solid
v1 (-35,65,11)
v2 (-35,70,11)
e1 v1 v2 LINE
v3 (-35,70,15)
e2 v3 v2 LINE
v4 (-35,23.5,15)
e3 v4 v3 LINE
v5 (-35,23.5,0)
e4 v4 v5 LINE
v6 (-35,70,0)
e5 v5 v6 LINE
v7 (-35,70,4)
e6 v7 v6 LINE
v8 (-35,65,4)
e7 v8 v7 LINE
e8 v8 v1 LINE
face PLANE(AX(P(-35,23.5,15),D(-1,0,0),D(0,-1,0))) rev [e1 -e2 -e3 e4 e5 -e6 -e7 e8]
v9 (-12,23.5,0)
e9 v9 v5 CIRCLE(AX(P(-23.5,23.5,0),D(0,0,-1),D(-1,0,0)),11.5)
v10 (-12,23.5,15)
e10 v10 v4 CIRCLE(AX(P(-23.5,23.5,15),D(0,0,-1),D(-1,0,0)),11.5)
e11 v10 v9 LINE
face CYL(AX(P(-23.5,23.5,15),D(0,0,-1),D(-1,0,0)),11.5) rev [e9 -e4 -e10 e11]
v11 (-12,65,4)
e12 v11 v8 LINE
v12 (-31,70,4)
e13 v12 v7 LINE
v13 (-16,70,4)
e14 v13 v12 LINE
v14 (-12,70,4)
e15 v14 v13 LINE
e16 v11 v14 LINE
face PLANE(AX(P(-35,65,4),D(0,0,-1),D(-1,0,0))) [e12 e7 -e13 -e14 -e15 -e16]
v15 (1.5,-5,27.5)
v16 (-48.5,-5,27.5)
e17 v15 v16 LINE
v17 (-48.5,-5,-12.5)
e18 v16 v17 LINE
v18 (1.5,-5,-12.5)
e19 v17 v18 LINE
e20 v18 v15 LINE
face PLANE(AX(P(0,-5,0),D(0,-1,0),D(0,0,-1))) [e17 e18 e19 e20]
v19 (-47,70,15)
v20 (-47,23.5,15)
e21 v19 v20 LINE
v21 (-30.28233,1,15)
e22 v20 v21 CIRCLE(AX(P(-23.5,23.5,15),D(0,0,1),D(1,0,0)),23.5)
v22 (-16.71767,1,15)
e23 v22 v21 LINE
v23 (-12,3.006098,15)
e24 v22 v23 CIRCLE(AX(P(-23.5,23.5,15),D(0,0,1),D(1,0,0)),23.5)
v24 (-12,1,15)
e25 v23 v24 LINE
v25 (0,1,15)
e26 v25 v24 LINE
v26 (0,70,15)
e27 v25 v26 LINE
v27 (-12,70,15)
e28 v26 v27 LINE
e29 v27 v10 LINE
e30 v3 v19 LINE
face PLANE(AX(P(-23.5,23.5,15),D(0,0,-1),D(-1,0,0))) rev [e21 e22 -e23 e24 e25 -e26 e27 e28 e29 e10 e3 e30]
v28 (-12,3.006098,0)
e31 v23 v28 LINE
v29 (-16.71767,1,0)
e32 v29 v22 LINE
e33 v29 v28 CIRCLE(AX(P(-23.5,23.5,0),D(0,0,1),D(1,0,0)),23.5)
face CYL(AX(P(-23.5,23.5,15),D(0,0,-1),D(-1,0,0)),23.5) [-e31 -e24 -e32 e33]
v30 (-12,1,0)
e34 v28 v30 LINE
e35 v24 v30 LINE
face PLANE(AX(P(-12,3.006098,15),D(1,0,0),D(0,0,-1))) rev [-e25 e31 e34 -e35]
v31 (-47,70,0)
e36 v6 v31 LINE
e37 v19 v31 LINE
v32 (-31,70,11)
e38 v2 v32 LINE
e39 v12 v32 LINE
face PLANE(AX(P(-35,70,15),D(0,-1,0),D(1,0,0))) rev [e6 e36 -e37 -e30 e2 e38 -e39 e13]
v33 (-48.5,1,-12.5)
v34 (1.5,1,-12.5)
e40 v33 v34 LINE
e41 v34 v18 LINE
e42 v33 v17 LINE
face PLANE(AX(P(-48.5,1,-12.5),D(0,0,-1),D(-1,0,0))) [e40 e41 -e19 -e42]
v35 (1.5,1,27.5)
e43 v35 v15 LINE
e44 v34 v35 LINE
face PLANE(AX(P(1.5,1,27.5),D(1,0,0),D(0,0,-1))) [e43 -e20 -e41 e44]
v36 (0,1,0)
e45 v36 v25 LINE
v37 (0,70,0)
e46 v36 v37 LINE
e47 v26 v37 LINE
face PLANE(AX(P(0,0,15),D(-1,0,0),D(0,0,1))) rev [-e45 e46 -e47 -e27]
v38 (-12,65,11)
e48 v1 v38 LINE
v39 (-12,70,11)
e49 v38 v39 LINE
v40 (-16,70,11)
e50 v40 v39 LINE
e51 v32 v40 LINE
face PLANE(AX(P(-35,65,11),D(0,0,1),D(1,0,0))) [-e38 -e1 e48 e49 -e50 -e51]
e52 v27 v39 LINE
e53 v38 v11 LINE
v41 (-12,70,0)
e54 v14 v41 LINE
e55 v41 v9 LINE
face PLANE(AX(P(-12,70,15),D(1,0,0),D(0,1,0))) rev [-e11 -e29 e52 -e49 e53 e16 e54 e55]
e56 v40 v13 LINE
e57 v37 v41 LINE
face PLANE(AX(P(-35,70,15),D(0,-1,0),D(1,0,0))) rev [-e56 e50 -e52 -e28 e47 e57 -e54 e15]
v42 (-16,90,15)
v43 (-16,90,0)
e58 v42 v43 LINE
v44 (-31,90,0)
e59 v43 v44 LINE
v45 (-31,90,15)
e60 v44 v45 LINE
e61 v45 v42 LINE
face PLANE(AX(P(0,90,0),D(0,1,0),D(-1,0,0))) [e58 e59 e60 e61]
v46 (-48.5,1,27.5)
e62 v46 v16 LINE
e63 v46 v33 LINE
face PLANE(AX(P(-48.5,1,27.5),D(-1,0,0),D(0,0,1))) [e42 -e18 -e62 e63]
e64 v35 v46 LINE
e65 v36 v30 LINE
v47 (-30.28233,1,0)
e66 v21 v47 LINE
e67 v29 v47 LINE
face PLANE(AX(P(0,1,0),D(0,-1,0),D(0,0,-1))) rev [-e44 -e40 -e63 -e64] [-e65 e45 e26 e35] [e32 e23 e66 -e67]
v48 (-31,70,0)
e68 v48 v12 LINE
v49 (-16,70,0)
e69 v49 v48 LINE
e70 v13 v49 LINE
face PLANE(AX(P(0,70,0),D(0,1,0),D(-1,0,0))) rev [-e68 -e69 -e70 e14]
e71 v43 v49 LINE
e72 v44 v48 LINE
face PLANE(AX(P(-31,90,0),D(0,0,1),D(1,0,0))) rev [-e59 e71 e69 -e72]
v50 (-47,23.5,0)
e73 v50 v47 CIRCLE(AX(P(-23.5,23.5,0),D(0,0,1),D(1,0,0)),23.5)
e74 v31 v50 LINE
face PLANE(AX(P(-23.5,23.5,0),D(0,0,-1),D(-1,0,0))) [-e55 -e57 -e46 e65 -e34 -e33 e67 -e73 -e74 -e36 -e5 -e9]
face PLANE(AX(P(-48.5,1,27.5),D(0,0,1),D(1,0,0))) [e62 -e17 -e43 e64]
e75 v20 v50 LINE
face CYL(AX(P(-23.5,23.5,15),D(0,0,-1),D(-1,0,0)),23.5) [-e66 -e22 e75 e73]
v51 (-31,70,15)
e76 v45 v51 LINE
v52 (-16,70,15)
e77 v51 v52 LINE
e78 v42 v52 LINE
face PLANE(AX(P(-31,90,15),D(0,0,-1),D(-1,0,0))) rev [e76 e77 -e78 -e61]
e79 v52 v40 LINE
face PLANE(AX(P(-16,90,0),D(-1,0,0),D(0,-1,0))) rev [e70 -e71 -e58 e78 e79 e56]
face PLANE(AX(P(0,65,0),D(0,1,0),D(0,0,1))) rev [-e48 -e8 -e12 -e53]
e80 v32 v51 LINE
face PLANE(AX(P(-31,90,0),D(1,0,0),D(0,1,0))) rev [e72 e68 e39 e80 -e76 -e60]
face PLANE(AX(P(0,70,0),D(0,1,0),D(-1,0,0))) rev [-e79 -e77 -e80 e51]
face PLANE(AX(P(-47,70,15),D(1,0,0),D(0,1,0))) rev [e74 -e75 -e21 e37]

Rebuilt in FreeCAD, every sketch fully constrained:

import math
import FreeCAD as App
import Part
import Sketcher

V = App.Vector


def add_polygon(sketch, points):
    """Adds a closed chain of lines whose ends are joined by coincident constraints."""
    first, n = sketch.GeometryCount, len(points)
    for a, b in zip(points, points[1:] + points[:1]):
        sketch.addGeometry(Part.LineSegment(App.Vector(*a, 0), App.Vector(*b, 0)), False)
    for i in range(n):
        sketch.addConstraint(Sketcher.Constraint("Coincident", first + i, 2, first + (i + 1) % n, 1))

doc = App.newDocument("Part")
params = doc.addObject("Spreadsheet::Sheet", "Params")
for row, (alias, value) in enumerate([
    ("sketch1_radius", "11.5 mm"),
    ("sketch1_radius2", "23.5 mm"),
    ("sketch1_height", "70 mm"),
    ("sketch1_height2", "46.5 mm"),
    ("pad1_length", "15 mm"),
    ("sketch2_width", "50 mm"),
    ("sketch2_height", "40 mm"),
    ("pad2_length", "5 mm"),
    ("pad2_length2", "1 mm"),
    ("sketch3_width", "23 mm"),
    ("sketch3_height", "7 mm"),
    ("pad3_length", "5 mm"),
    ("sketch4_width", "15 mm"),
    ("pad4_length", "20 mm"),
], start=1):
    params.set(f"A{row}", alias)
    params.set(f"B{row}", "=" + value)
    params.setAlias(f"B{row}", alias)

body = doc.addObject("PartDesign::Body", "Body")

# Sketch on XY plane
sketch1 = body.newObject("Sketcher::SketchObject", "Sketch")
sketch1.AttachmentSupport = (doc.getObject("XY_Plane"), [""])
sketch1.MapMode = "FlatFace"
sketch1.addGeometry([
    Part.LineSegment(V(0, 0, 0), V(0, 70, 0)),  # 0
    Part.LineSegment(V(0, 70, 0), V(-12, 70, 0)),  # 1
    Part.LineSegment(V(-12, 70, 0), V(-12, 23.5, 0)),  # 2
    Part.ArcOfCircle(Part.Circle(V(-23.5, 23.5, 0), V(0, 0, 1), 11.5), math.radians(180), math.radians(360)),  # 3
    Part.LineSegment(V(-35, 23.5, 0), V(-35, 70, 0)),  # 4
    Part.LineSegment(V(-35, 70, 0), V(-47, 70, 0)),  # 5
    Part.LineSegment(V(-47, 70, 0), V(-47, 23.5, 0)),  # 6
    Part.ArcOfCircle(Part.Circle(V(-23.5, 23.5, 0), V(0, 0, 1), 23.5), math.radians(180), math.radians(299)),  # 7
    Part.LineSegment(V(-12, 3, 0), V(-12, 0, 0)),  # 8
    Part.LineSegment(V(-12, 0, 0), V(0, 0, 0)),  # 9
], False)
sketch1.addConstraint([
    Sketcher.Constraint("Coincident", 0, 2, 1, 1),
    Sketcher.Constraint("Coincident", 1, 2, 2, 1),
    Sketcher.Constraint("Tangent", 2, 2, 3, 2),
    Sketcher.Constraint("Tangent", 3, 1, 4, 1),
    Sketcher.Constraint("Coincident", 4, 2, 5, 1),
    Sketcher.Constraint("Coincident", 5, 2, 6, 1),
    Sketcher.Constraint("Tangent", 6, 2, 7, 1),
    Sketcher.Constraint("Coincident", 7, 2, 8, 1),
    Sketcher.Constraint("Coincident", 8, 2, 9, 1),
    Sketcher.Constraint("Coincident", 9, 2, 0, 1),
    Sketcher.Constraint("Vertical", 0),
    Sketcher.Constraint("Horizontal", 1),
    Sketcher.Constraint("Vertical", 2),
    Sketcher.Constraint("Vertical", 4),
    Sketcher.Constraint("Horizontal", 5),
    Sketcher.Constraint("Vertical", 6),
    Sketcher.Constraint("Vertical", 8),
    Sketcher.Constraint("Horizontal", 9),
    Sketcher.Constraint("Coincident", 9, 2, -1, 1),
    Sketcher.Constraint("Coincident", 7, 3, 3, 3),
    Sketcher.Constraint("Horizontal", 1, 2, 4, 2),
    Sketcher.Constraint("Vertical", 2, 2, 7, 2),
    Sketcher.Constraint("Equal", 1, 5),
    Sketcher.Constraint("Radius", 3, 11.5),
    Sketcher.Constraint("Radius", 7, 23.5),
    Sketcher.Constraint("DistanceY", 0, 1, 0, 2, 70.0),
    Sketcher.Constraint("DistanceY", 2, 2, 2, 1, 46.5),
])
sketch1.setExpression("Constraints[23]", "Params.sketch1_radius")
sketch1.setExpression("Constraints[24]", "Params.sketch1_radius2")
sketch1.setExpression("Constraints[25]", "Params.sketch1_height")
sketch1.setExpression("Constraints[26]", "Params.sketch1_height2")
pad1 = body.newObject("PartDesign::Pad", "Pad")
pad1.Profile = sketch1
pad1.setExpression("Length", "Params.pad1_length")

# Sketch on XZ plane
sketch2 = body.newObject("Sketcher::SketchObject", "Sketch001")
sketch2.AttachmentSupport = (doc.getObject("XZ_Plane"), [""])
sketch2.MapMode = "FlatFace"
add_polygon(sketch2, [(-48, 28), (-48, -12), (2, -12), (2, 28)])  # lines 0-3
sketch2.addConstraint([
    Sketcher.Constraint("Vertical", 0),
    Sketcher.Constraint("Horizontal", 1),
    Sketcher.Constraint("Vertical", 2),
    Sketcher.Constraint("Horizontal", 3),
    Sketcher.Constraint("DistanceX", 1, 1, 1, 2, 50.0),
    Sketcher.Constraint("DistanceY", 0, 2, 0, 1, 40.0),
    Sketcher.Constraint("DistanceX", 0, 2, -1, 1, 48.5),
    Sketcher.Constraint("DistanceY", 0, 2, -1, 1, 12.5),
])
sketch2.setExpression("Constraints[8]", "Params.sketch2_width")
sketch2.setExpression("Constraints[9]", "Params.sketch2_height")
pad2 = body.newObject("PartDesign::Pad", "Pad001")
pad2.Profile = sketch2
pad2.Type = "TwoLengths"
pad2.setExpression("Length", "Params.pad2_length")
pad2.setExpression("Length2", "Params.pad2_length2")

# Sketch on XZ plane
sketch3 = body.newObject("Sketcher::SketchObject", "Sketch002")
sketch3.AttachmentSupport = (doc.getObject("XZ_Plane"), [""])
sketch3.MapMode = "FlatFace"
sketch3.AttachmentOffset = App.Placement(V(0, 0, -70), App.Rotation())
add_polygon(sketch3, [(-35, 4), (-35, 11), (-12, 11), (-12, 4)])  # lines 0-3
sketch3.addConstraint([
    Sketcher.Constraint("Vertical", 0),
    Sketcher.Constraint("Horizontal", 1),
    Sketcher.Constraint("Vertical", 2),
    Sketcher.Constraint("Horizontal", 3),
    Sketcher.Constraint("DistanceX", 1, 1, 1, 2, 23.0),
    Sketcher.Constraint("DistanceY", 0, 1, 0, 2, 7.0),
    Sketcher.Constraint("DistanceX", 0, 2, -1, 1, 35.0),
    Sketcher.Constraint("DistanceY", -1, 1, 0, 2, 11.0),
])
sketch3.setExpression("Constraints[8]", "Params.sketch3_width")
sketch3.setExpression("Constraints[9]", "Params.sketch3_height")
pad3 = body.newObject("PartDesign::Pad", "Pad002")
pad3.Profile = sketch3
pad3.setExpression("Length", "Params.pad3_length")

# Sketch on XZ plane
sketch4 = body.newObject("Sketcher::SketchObject", "Sketch003")
sketch4.AttachmentSupport = (doc.getObject("XZ_Plane"), [""])
sketch4.MapMode = "FlatFace"
sketch4.AttachmentOffset = App.Placement(V(0, 0, -70), App.Rotation())
add_polygon(sketch4, [(-31, 0), (-31, 15), (-16, 15), (-16, 0)])  # lines 0-3
sketch4.addConstraint([
    Sketcher.Constraint("Vertical", 0),
    Sketcher.Constraint("Horizontal", 1),
    Sketcher.Constraint("Vertical", 2),
    Sketcher.Constraint("Horizontal", 3),
    Sketcher.Constraint("PointOnObject", 2, 2, -1),
    Sketcher.Constraint("Equal", 3, 0),
    Sketcher.Constraint("DistanceX", 1, 1, 1, 2, 15.0),
    Sketcher.Constraint("DistanceX", 0, 2, -1, 1, 31.0),
])
sketch4.setExpression("Constraints[10]", "Params.sketch4_width")
pad4 = body.newObject("PartDesign::Pad", "Pad003")
pad4.Profile = sketch4
pad4.setExpression("Length", "Params.pad4_length")
pad4.Reversed = True

doc.recompute()
